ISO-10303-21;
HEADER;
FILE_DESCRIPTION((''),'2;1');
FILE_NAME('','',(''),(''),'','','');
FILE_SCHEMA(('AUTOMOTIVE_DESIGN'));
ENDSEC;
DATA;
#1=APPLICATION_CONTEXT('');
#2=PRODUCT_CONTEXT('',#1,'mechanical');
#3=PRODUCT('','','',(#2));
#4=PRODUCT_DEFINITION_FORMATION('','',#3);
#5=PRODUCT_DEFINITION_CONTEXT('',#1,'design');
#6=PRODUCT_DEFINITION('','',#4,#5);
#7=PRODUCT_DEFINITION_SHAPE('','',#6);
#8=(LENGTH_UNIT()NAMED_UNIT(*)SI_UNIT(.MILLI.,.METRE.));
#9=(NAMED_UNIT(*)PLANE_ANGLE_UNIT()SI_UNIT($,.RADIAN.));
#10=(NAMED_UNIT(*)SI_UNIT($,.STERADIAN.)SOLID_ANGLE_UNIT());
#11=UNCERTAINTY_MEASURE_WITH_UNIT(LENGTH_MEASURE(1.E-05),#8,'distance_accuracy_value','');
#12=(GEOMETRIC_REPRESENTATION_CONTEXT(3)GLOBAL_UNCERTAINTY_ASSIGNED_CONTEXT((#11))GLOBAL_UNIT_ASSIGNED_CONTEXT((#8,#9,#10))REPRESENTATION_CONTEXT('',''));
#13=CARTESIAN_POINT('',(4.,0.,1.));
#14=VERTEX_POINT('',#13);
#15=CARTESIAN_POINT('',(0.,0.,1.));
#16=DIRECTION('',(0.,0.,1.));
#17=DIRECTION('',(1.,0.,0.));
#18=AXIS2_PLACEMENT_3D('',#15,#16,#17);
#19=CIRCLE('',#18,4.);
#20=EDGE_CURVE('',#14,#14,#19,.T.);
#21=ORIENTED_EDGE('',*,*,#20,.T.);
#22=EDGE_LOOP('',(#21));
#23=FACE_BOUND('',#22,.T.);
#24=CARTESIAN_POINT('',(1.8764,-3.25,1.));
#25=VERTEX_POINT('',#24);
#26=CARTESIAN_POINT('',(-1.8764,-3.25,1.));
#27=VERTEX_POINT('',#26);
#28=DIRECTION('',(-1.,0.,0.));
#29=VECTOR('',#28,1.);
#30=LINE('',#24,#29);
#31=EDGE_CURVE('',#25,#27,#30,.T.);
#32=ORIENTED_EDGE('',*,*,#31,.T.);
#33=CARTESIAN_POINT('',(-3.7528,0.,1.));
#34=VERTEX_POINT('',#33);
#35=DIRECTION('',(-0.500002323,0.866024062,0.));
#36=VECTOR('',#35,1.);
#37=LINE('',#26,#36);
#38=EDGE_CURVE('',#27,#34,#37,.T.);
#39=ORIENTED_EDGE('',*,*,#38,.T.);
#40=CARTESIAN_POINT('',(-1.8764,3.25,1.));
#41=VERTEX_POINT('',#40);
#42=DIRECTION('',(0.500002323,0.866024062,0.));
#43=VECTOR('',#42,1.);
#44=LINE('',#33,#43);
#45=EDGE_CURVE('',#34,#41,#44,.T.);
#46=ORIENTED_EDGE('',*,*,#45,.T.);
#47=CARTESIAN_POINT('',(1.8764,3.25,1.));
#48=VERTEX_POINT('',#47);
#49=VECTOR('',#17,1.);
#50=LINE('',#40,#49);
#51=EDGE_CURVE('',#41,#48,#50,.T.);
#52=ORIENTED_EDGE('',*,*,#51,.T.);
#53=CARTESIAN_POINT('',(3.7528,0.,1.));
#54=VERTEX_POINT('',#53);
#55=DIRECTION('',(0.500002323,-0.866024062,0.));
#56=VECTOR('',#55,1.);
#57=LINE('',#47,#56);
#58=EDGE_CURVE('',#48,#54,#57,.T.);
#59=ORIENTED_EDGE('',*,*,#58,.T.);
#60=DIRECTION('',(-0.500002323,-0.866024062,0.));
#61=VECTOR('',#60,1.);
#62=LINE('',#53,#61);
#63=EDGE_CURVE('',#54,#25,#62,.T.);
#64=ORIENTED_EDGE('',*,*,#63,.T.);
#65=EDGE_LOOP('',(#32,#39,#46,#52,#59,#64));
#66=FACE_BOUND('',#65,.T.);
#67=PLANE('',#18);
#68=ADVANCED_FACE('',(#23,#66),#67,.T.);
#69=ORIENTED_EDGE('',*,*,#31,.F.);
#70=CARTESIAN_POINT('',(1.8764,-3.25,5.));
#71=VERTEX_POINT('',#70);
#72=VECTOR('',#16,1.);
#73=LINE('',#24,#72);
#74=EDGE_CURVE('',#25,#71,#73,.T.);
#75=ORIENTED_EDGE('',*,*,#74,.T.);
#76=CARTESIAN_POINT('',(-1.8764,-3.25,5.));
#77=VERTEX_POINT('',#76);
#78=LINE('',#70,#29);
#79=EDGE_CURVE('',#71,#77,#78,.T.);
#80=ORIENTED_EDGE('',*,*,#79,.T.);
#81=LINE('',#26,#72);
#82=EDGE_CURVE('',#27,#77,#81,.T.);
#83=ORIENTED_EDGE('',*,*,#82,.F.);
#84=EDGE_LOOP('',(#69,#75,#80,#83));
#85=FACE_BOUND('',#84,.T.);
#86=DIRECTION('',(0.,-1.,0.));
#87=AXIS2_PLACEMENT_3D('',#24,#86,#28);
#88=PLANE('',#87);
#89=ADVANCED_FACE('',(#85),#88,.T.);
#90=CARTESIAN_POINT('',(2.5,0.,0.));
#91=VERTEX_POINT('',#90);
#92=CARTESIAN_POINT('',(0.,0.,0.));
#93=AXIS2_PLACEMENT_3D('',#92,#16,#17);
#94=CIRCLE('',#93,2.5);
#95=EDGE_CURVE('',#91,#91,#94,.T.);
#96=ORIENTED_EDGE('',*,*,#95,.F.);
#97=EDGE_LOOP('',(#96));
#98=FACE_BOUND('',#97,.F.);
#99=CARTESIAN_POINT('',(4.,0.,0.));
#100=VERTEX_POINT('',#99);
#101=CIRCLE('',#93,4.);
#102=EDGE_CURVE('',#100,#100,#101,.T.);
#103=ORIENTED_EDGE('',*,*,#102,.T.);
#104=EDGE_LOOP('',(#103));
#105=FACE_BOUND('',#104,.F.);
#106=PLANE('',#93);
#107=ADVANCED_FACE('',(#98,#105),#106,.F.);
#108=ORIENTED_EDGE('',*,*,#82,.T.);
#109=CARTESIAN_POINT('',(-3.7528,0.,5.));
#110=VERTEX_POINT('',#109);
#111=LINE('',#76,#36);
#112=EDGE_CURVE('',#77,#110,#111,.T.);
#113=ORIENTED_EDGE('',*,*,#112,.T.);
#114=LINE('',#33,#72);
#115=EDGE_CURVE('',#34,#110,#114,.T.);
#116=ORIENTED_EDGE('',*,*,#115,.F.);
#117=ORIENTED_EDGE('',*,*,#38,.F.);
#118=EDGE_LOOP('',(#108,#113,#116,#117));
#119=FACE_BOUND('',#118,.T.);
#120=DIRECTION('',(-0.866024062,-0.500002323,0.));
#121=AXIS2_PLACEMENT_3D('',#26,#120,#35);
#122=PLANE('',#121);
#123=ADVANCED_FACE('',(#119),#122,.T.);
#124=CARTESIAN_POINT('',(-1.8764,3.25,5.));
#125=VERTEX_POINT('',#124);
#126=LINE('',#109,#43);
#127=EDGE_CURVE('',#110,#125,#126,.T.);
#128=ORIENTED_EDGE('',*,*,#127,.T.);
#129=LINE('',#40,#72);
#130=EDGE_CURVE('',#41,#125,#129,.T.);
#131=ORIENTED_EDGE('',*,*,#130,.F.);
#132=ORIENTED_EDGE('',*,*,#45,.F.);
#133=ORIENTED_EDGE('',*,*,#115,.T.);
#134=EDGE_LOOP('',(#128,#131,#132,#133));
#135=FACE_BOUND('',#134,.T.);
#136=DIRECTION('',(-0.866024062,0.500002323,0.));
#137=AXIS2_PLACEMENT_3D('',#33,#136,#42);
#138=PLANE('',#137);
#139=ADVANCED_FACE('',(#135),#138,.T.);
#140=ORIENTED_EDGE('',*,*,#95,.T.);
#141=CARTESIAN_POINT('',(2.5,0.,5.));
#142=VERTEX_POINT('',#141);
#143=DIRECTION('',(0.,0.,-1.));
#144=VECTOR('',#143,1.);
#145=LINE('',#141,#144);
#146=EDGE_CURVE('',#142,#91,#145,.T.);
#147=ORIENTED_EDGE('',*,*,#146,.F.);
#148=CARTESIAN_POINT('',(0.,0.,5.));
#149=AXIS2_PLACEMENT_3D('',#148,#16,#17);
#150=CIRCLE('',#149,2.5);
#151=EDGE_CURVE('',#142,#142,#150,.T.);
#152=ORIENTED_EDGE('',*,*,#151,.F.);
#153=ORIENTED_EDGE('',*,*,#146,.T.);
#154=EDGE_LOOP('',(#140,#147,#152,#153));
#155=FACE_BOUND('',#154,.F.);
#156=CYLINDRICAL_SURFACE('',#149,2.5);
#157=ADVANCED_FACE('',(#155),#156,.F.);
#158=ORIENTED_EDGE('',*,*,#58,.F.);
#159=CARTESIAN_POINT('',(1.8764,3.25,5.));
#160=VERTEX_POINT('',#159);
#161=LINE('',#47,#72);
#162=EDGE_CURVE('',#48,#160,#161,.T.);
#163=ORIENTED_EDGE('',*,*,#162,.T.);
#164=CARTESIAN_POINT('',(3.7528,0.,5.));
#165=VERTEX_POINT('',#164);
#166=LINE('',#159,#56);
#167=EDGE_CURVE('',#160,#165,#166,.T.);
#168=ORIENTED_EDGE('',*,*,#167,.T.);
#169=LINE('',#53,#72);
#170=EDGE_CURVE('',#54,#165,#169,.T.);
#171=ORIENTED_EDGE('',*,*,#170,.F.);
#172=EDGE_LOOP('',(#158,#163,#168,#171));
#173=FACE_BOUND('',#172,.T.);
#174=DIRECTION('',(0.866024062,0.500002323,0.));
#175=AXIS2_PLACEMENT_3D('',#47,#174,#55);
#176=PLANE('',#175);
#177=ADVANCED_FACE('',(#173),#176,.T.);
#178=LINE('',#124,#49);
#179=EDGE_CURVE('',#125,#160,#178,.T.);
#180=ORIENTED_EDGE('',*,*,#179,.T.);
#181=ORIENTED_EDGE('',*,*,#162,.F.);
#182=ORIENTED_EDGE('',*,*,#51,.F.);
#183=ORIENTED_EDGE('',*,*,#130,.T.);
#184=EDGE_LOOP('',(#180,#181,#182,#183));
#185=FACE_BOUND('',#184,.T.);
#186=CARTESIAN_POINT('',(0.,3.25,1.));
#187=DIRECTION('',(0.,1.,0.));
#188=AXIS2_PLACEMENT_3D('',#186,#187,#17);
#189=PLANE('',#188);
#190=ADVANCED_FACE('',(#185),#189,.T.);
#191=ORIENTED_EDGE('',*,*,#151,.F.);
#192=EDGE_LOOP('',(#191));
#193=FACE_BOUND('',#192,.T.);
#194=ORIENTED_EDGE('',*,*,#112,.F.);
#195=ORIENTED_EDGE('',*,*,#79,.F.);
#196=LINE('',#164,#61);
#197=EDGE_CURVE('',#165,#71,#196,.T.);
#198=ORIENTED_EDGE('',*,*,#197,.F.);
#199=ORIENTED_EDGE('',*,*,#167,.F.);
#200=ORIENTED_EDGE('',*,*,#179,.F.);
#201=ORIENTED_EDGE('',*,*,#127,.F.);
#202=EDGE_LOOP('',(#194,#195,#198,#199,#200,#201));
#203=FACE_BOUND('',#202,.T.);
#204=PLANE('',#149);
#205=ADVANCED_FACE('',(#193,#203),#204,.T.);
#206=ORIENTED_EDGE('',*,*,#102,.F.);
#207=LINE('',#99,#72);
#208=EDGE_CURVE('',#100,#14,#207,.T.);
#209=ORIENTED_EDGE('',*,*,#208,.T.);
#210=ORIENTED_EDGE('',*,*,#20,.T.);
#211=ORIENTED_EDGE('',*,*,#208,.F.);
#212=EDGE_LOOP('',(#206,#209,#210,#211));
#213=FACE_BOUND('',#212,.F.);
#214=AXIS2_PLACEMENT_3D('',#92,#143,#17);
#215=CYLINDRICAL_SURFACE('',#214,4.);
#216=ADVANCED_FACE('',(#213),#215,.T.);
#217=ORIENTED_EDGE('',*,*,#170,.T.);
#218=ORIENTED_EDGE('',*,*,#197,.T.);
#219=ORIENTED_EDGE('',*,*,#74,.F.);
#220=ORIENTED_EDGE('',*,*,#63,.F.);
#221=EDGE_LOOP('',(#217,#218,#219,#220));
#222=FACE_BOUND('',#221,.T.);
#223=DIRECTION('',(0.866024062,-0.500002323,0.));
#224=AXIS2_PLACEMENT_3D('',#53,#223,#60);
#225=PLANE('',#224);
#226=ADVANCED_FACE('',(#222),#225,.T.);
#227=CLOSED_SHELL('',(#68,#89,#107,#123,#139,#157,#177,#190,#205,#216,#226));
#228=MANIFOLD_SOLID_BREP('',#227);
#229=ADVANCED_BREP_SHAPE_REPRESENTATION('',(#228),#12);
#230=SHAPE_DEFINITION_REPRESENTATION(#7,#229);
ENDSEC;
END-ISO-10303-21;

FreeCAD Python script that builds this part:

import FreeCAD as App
import Part
import Sketcher
from FreeCAD import Vector
Q = App.Units.Quantity


def add_polygon(sketch, points):
    """Adds a closed chain of lines whose ends are joined by coincident constraints."""
    first, n = sketch.GeometryCount, len(points)
    for a, b in zip(points, points[1:] + points[:1]):
        sketch.addGeometry(Part.LineSegment(App.Vector(*a, 0), App.Vector(*b, 0)), False)
    for i in range(n):
        sketch.addConstraint(Sketcher.Constraint("Coincident", first + i, 2, first + (i + 1) % n, 1))

doc = App.newDocument("Part")
body = doc.addObject("PartDesign::Body", "Body")

# Sketch on XY plane
sketch1 = body.newObject("Sketcher::SketchObject", "Sketch")
sketch1.AttachmentSupport = (doc.getObject("XY_Plane"), [""])
sketch1.MapMode = "FlatFace"
sketch1.addGeometry(Part.Circle(Vector(0, 0, 0), Vector(0, 0, 1), 4), False)
sketch1.addConstraint(Sketcher.Constraint("Coincident", 0, 3, -1, 1))
sketch1.addConstraint(Sketcher.Constraint("Diameter", 0, Q("8 mm")))
pad1 = body.newObject("PartDesign::Pad", "Pad")
pad1.Profile = sketch1
pad1.Length = 1

# Sketch on XY plane
sketch2 = body.newObject("Sketcher::SketchObject", "Sketch001")
sketch2.AttachmentSupport = (doc.getObject("XY_Plane"), [""])
sketch2.MapMode = "FlatFace"
sketch2.AttachmentOffset = App.Placement(Vector(0, 0, 1), App.Rotation())
add_polygon(sketch2, [(-1.8764, -3.25), (1.8764, -3.25), (3.7528, 0), (1.8764, 3.25), (-1.8764, 3.25), (-3.7528, 0)])  # lines 0-5
sketch2.addConstraint(Sketcher.Constraint("Horizontal", 0))
sketch2.addConstraint(Sketcher.Constraint("Horizontal", 3))
sketch2.addConstraint(Sketcher.Constraint("Symmetric", 0, 2, 3, 2, -1, 1))
sketch2.addConstraint(Sketcher.Constraint("Symmetric", 1, 2, 4, 2, -1, 1))
sketch2.addConstraint(Sketcher.Constraint("PointOnObject", 1, 2, -1))
sketch2.addConstraint(Sketcher.Constraint("Parallel", 2, 5))
sketch2.addConstraint(Sketcher.Constraint("Vertical", 0, 2, 2, 2))
sketch2.addConstraint(Sketcher.Constraint("DistanceY", 0, 2, 2, 2, Q("6.5 mm")))
sketch2.addConstraint(Sketcher.Constraint("Angle", 1, Q("59.9998 deg")))
sketch2.addConstraint(Sketcher.Constraint("DistanceX", 0, 1, 0, 2, Q("3.7528 mm")))
pad2 = body.newObject("PartDesign::Pad", "Pad001")
pad2.Profile = sketch2
pad2.Length = 4

# Sketch on XY plane
sketch3 = body.newObject("Sketcher::SketchObject", "Sketch002")
sketch3.AttachmentSupport = (doc.getObject("XY_Plane"), [""])
sketch3.MapMode = "FlatFace"
sketch3.AttachmentOffset = App.Placement(Vector(0, 0, 5), App.Rotation())
sketch3.addGeometry(Part.Circle(Vector(0, 0, 0), Vector(0, 0, 1), 2.5), False)
sketch3.addConstraint(Sketcher.Constraint("Coincident", 0, 3, -1, 1))
sketch3.addConstraint(Sketcher.Constraint("Diameter", 0, Q("5 mm")))
pocket1 = body.newObject("PartDesign::Pocket", "Pocket")
pocket1.Profile = sketch3
pocket1.Type = "ThroughAll"

doc.recompute()
